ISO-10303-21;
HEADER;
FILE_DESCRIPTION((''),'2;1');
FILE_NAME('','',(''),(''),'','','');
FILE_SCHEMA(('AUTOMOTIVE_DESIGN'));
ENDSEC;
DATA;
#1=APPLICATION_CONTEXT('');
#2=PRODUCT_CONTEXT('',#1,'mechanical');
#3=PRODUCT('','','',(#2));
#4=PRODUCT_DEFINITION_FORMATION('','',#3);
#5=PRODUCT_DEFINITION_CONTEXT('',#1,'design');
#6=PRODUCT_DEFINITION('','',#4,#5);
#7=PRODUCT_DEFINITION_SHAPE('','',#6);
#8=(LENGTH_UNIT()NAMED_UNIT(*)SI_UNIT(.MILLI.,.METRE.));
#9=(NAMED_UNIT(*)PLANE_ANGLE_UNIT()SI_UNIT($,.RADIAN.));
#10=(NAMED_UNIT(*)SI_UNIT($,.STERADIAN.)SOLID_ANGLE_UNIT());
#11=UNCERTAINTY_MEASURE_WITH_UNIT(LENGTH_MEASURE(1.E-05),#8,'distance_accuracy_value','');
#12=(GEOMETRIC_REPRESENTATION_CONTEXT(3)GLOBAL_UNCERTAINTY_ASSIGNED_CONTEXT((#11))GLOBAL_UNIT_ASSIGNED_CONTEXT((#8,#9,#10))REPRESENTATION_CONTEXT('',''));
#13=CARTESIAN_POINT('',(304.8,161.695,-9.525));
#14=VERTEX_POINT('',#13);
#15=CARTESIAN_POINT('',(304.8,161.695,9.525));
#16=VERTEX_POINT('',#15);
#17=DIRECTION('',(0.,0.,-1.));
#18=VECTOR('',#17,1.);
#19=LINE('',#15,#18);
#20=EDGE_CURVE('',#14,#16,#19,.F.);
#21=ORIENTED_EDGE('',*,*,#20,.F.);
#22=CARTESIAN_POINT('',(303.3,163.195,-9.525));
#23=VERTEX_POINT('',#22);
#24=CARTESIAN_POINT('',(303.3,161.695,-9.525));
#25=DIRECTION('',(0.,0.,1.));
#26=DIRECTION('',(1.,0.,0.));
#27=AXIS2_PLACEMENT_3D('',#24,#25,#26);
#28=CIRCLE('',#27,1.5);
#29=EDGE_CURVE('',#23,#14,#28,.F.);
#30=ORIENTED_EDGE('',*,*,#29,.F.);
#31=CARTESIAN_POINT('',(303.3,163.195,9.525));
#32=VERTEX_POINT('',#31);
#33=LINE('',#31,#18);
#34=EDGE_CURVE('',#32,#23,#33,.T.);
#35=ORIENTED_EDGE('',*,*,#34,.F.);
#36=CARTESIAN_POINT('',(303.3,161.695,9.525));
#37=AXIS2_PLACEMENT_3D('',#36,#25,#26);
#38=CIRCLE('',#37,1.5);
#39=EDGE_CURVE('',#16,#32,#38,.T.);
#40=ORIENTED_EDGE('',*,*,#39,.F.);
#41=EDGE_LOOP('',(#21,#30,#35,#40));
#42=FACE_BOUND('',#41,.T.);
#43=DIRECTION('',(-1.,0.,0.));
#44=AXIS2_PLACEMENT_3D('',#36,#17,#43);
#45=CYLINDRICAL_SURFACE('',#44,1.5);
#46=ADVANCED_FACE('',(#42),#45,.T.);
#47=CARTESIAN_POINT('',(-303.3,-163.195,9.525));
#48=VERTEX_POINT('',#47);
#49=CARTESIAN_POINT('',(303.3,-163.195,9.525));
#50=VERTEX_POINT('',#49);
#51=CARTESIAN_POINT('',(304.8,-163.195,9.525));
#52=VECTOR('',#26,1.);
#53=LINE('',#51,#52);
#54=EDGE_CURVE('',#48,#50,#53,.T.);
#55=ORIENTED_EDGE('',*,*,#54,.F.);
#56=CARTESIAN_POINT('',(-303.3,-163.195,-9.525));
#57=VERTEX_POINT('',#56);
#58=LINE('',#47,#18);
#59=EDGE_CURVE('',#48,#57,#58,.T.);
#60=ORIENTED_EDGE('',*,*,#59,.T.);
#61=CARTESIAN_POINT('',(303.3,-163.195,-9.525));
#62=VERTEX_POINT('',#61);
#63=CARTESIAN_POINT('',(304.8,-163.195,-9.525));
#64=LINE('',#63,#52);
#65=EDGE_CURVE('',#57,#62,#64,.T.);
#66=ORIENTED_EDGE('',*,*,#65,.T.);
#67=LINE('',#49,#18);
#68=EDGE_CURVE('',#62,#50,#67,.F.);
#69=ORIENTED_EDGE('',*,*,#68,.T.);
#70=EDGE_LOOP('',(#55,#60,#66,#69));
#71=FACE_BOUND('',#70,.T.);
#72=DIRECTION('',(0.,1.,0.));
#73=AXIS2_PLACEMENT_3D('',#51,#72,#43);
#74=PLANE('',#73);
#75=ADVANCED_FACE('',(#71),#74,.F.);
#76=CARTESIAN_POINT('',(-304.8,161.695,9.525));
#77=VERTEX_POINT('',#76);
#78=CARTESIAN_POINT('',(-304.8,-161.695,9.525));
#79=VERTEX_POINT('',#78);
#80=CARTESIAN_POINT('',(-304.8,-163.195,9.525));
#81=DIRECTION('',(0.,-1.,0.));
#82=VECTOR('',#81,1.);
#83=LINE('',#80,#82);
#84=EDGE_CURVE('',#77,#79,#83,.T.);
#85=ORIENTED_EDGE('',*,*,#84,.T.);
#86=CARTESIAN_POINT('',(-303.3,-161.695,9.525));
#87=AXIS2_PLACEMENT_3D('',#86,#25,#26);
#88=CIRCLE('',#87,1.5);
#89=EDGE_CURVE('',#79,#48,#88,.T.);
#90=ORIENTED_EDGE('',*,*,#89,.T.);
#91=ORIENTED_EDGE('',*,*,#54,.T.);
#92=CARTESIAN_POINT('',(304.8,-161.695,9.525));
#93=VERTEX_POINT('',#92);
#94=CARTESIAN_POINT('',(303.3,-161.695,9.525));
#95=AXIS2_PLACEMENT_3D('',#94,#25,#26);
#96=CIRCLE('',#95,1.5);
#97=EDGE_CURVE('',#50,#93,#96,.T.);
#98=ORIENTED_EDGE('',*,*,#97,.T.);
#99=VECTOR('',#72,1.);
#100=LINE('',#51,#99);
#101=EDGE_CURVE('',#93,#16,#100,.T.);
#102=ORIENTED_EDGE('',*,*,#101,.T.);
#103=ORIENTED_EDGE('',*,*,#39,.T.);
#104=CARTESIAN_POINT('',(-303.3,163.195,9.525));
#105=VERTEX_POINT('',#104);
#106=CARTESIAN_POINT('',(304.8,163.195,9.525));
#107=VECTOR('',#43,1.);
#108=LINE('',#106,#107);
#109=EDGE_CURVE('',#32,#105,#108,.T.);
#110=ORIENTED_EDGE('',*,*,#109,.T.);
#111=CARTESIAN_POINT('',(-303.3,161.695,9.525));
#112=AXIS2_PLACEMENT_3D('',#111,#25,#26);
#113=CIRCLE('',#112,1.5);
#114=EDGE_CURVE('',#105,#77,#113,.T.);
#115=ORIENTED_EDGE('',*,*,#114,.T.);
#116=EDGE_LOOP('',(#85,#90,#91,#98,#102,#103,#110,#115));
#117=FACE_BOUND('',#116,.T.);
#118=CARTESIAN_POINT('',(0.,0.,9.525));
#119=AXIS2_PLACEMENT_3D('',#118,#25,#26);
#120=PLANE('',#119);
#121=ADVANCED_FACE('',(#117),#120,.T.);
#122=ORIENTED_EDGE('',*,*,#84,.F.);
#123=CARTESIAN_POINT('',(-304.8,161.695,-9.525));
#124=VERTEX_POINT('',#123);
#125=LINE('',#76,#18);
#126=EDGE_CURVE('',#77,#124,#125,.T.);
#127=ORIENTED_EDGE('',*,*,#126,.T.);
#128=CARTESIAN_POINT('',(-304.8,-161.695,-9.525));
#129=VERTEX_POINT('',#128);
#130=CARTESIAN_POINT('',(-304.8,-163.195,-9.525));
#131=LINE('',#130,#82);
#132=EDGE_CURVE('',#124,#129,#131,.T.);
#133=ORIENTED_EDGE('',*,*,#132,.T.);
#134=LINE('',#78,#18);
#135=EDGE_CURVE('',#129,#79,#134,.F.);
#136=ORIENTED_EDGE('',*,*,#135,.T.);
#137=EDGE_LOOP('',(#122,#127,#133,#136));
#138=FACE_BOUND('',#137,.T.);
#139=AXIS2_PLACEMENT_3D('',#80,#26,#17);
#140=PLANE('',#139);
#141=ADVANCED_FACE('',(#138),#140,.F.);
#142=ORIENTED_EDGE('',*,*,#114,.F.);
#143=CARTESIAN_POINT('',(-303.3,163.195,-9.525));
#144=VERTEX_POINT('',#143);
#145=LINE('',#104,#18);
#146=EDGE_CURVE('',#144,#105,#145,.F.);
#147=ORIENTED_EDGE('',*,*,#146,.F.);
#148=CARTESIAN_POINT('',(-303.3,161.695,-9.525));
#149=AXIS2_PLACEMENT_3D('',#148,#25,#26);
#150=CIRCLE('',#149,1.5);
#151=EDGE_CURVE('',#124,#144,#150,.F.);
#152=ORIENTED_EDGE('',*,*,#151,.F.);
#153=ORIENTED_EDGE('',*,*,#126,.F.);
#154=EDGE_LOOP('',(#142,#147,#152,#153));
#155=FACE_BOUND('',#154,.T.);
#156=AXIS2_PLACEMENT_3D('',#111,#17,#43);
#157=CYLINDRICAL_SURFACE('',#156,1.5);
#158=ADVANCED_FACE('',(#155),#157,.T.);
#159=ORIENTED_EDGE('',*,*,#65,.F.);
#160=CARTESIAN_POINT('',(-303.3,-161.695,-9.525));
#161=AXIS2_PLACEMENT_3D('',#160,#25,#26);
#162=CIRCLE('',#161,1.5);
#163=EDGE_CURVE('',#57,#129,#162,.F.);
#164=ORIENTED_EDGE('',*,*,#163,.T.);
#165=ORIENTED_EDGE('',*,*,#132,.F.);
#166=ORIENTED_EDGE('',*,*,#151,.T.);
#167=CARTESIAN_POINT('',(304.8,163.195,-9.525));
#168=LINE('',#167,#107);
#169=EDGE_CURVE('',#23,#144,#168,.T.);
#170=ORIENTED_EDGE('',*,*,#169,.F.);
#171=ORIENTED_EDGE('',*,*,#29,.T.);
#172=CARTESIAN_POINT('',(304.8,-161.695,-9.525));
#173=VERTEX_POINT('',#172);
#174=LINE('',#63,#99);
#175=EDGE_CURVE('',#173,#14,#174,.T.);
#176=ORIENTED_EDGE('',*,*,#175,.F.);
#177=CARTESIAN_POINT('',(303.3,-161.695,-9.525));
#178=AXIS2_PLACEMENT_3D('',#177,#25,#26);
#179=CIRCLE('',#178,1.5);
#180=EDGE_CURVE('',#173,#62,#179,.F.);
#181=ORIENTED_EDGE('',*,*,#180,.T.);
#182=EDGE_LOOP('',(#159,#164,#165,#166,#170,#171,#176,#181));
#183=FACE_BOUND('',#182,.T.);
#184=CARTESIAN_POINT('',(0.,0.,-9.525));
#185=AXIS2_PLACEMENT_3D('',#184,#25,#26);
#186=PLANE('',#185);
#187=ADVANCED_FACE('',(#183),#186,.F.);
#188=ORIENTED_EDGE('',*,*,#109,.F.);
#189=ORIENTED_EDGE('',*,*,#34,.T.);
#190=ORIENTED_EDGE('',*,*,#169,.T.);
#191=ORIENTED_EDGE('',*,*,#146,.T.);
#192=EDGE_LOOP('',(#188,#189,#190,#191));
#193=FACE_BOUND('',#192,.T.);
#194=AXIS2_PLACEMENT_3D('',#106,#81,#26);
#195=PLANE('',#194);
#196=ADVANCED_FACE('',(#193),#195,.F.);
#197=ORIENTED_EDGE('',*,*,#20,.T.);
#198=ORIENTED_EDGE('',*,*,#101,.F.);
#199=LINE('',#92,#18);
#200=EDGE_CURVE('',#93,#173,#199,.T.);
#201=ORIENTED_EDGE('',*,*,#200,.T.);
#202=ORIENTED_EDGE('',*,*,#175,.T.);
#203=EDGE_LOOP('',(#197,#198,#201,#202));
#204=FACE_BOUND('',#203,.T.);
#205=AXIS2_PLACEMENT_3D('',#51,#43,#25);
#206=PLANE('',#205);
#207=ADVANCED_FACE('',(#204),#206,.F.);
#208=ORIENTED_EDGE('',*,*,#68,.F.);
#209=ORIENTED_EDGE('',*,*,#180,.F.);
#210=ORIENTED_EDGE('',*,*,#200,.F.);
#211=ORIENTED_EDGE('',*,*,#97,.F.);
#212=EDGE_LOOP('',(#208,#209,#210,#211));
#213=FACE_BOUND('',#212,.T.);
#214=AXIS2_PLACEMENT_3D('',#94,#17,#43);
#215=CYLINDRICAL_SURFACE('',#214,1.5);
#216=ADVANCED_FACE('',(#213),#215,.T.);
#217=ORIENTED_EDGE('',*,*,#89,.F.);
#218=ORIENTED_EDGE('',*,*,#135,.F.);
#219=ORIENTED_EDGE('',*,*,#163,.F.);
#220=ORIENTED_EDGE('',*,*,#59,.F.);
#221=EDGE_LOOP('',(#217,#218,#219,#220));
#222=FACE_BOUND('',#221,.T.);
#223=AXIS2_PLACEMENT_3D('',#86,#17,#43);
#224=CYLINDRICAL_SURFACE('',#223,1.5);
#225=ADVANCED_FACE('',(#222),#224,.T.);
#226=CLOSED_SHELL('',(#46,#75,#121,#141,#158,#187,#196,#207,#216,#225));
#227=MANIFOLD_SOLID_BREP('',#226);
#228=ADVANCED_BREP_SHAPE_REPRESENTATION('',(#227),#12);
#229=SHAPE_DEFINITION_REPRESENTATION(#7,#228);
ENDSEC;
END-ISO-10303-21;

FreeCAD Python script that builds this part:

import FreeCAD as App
import Part
import Sketcher
from FreeCAD import Vector
Q = App.Units.Quantity


def edges_at(feature, points):
    """Names of the edges that pass closest to the given points."""
    edges = feature.Shape.Edges
    near = lambda p: min(range(len(edges)), key=lambda i: edges[i].distToShape(Part.Vertex(*p))[0])
    return sorted({f"Edge{near(p) + 1}" for p in points})

doc = App.newDocument("Part")
body = doc.addObject("PartDesign::Body", "Body")

sketch1 = doc.addObject("Sketcher::SketchObject", "Sketch")
body.addObject(sketch1)
sketch1.AttachmentSupport = (doc.XY_Plane, [""])
sketch1.MapMode = "FlatFace"
sketch1.addGeometry([
    Part.LineSegment(Vector(-304.8, 163.195, 0), Vector(-304.8, -163.195, 0)),
    Part.LineSegment(Vector(-304.8, -163.195, 0), Vector(304.8, -163.195, 0)),
    Part.LineSegment(Vector(304.8, -163.195, 0), Vector(304.8, 163.195, 0)),
    Part.LineSegment(Vector(304.8, 163.195, 0), Vector(-304.8, 163.195, 0)),
], False)
sketch1.addConstraint([
    Sketcher.Constraint("Coincident", 0, 2, 1, 1),
    Sketcher.Constraint("Coincident", 1, 2, 2, 1),
    Sketcher.Constraint("Coincident", 2, 2, 3, 1),
    Sketcher.Constraint("Coincident", 3, 2, 0, 1),
    Sketcher.Constraint("Vertical", 0),
    Sketcher.Constraint("Horizontal", 1),
    Sketcher.Constraint("Vertical", 2),
    Sketcher.Constraint("Horizontal", 3),
    Sketcher.Constraint("Symmetric", 0, 2, 2, 2, -1, 1),
    Sketcher.Constraint("DistanceX", 1, 1, 1, 2, Q("24 in")),
    Sketcher.Constraint("DistanceY", 0, 2, 0, 1, Q("12.85 in")),
])
pad1 = doc.addObject("PartDesign::Pad", "Pad")
body.addObject(pad1)
pad1.Profile = sketch1
pad1.Length = Q("0.75 in")
pad1.Midplane = True
doc.recompute()

fillet = doc.addObject("PartDesign::Fillet", "Fillet")
body.addObject(fillet)
fillet.Base = (pad1, edges_at(pad1, [
    (-304.8, 163.195, 0),
    (304.8, 163.195, 0),
    (304.8, -163.195, 0),
    (-304.8, -163.195, 0),
]))
fillet.Radius = 1.5

doc.recompute()
